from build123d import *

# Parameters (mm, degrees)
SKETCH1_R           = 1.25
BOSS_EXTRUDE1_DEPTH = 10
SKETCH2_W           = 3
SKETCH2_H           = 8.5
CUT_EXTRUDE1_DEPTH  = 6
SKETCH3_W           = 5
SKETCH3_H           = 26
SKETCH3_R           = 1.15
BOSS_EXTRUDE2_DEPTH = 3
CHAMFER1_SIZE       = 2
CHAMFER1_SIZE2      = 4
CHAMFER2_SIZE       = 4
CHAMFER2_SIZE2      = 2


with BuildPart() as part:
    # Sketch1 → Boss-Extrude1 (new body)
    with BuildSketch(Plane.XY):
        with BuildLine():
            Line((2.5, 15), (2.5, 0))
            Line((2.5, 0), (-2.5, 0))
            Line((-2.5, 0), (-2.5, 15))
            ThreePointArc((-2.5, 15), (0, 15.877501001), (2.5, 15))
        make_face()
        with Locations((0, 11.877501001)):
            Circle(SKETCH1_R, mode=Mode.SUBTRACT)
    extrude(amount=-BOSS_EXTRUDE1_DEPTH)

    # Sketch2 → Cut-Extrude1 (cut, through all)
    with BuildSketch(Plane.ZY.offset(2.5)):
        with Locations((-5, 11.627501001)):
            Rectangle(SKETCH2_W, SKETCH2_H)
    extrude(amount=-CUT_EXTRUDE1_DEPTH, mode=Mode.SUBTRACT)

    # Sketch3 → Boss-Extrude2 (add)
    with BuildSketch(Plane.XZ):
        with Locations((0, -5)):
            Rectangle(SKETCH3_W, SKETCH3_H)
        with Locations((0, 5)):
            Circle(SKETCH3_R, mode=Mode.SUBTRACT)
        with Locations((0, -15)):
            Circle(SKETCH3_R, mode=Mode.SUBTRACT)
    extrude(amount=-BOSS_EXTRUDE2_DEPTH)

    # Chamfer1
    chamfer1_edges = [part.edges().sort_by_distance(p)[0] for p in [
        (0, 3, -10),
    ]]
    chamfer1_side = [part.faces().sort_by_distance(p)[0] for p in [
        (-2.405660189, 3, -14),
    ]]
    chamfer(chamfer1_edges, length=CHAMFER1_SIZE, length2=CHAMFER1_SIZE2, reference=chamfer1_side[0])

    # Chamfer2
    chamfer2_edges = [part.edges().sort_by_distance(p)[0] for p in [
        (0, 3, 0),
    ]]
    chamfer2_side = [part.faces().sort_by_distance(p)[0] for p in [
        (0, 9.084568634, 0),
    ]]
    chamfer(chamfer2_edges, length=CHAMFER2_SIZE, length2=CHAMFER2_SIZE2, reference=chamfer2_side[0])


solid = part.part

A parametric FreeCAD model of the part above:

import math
import FreeCAD as App
import Part
import Sketcher


def edges_at(feature, points):
    """Names of the edges that pass closest to the given points."""
    edges = feature.Shape.Edges
    near = lambda p: min(range(len(edges)), key=lambda i: edges[i].distToShape(Part.Vertex(*p))[0])
    return sorted({f"Edge{near(p) + 1}" for p in points})


def add_polygon(sketch, points):
    """Adds a closed chain of lines whose ends are joined by coincident constraints."""
    first, n = sketch.GeometryCount, len(points)
    for a, b in zip(points, points[1:] + points[:1]):
        sketch.addGeometry(Part.LineSegment(App.Vector(*a, 0), App.Vector(*b, 0)), False)
    for i in range(n):
        sketch.addConstraint(Sketcher.Constraint("Coincident", first + i, 2, first + (i + 1) % n, 1))

doc = App.newDocument("Part")
params = doc.addObject("Spreadsheet::Sheet", "Params")
for row, (alias, value) in enumerate([
    ("sketch1_radius", "4 mm"),
    ("sketch1_diameter", "2.5 mm"),
    ("sketch1_width", "5 mm"),
    ("sketch1_height", "15 mm"),
    ("pad1_length", "10 mm"),
    ("sketch2_height", "3 mm"),
    ("sketch2_width", "8.5 mm"),
    ("sketch3_diameter", "2.3 mm"),
    ("sketch3_width", "5 mm"),
    ("sketch3_height", "26 mm"),
    ("pad2_length", "3 mm"),
    ("chamfer_size", "2 mm"),
    ("chamfer_size2", "4 mm"),
    ("chamfer2_size", "4 mm"),
    ("chamfer2_size2", "2 mm"),
], start=1):
    params.set(f"A{row}", alias)
    params.set(f"B{row}", "=" + value)
    params.setAlias(f"B{row}", alias)

body = doc.addObject("PartDesign::Body", "Body")

sketch1 = body.newObject("Sketcher::SketchObject", "Sketch")
sketch1.AttachmentSupport = (doc.getObject("XY_Plane"), [""])
sketch1.MapMode = "FlatFace"
sketch1.addGeometry([
    Part.LineSegment(App.Vector(2.5, 0, 0), App.Vector(2.5, 15, 0)),
    Part.ArcOfCircle(Part.Circle(App.Vector(0, 11.877501, 0), App.Vector(0, 0, 1), 4), math.radians(51.317813), math.radians(128.682187)),
    Part.LineSegment(App.Vector(-2.5, 15, 0), App.Vector(-2.5, 0, 0)),
    Part.LineSegment(App.Vector(-2.5, 0, 0), App.Vector(2.5, 0, 0)),
    Part.Circle(App.Vector(0, 11.877501, 0), App.Vector(0, 0, 1), 1.25),
], False)
sketch1.addConstraint([
    Sketcher.Constraint("Coincident", 0, 2, 1, 1),
    Sketcher.Constraint("Coincident", 1, 2, 2, 1),
    Sketcher.Constraint("Coincident", 2, 2, 3, 1),
    Sketcher.Constraint("Coincident", 3, 2, 0, 1),
    Sketcher.Constraint("Vertical", 0),
    Sketcher.Constraint("Vertical", 2),
    Sketcher.Constraint("Horizontal", 3),
    Sketcher.Constraint("Coincident", 4, 3, 1, 3),
    Sketcher.Constraint("Symmetric", 2, 2, 3, 2, -1, 1),
    Sketcher.Constraint("PointOnObject", 1, 3, -2),
    Sketcher.Constraint("Radius", 1, 4.0),
    Sketcher.Constraint("Diameter", 4, 2.5),
    Sketcher.Constraint("DistanceX", 3, 1, 3, 2, 5.0),
    Sketcher.Constraint("DistanceY", 0, 1, 0, 2, 15.0),
])
sketch1.setExpression("Constraints[10]", "Params.sketch1_radius")
sketch1.setExpression("Constraints[11]", "Params.sketch1_diameter")
sketch1.setExpression("Constraints[12]", "Params.sketch1_width")
sketch1.setExpression("Constraints[13]", "Params.sketch1_height")
pad1 = body.newObject("PartDesign::Pad", "Pad")
pad1.Profile = sketch1
pad1.setExpression("Length", "Params.pad1_length")
pad1.Reversed = True

sketch2 = body.newObject("Sketcher::SketchObject", "Sketch001")
sketch2.AttachmentSupport = (doc.getObject("YZ_Plane"), [""])
sketch2.MapMode = "FlatFace"
sketch2.AttachmentOffset = App.Placement(App.Vector(0, 0, -2.5), App.Rotation())
add_polygon(sketch2, [(15.877501, -6.5), (7.377501, -6.5), (7.377501, -3.5), (15.877501, -3.5)])
sketch2.addConstraint([
    Sketcher.Constraint("Horizontal", 0),
    Sketcher.Constraint("Vertical", 1),
    Sketcher.Constraint("Horizontal", 2),
    Sketcher.Constraint("Vertical", 3),
    Sketcher.Constraint("DistanceY", 1, 1, 1, 2, 3.0),
    Sketcher.Constraint("DistanceX", 0, 2, 0, 1, 8.5),
    Sketcher.Constraint("DistanceY", 0, 2, -1, 1, 6.5),
    Sketcher.Constraint("DistanceX", -1, 1, 0, 2, 7.377501),
])
sketch2.setExpression("Constraints[8]", "Params.sketch2_height")
sketch2.setExpression("Constraints[9]", "Params.sketch2_width")
pocket1 = body.newObject("PartDesign::Pocket", "Pocket")
pocket1.Profile = sketch2
pocket1.Type = "ThroughAll"
pocket1.Reversed = True

sketch3 = body.newObject("Sketcher::SketchObject", "Sketch002")
sketch3.AttachmentSupport = (doc.getObject("XZ_Plane"), [""])
sketch3.MapMode = "FlatFace"
add_polygon(sketch3, [(-2.5, 8), (-2.5, -18), (2.5, -18), (2.5, 8)])
sketch3.addGeometry(Part.Circle(App.Vector(0, -15, 0), App.Vector(0, 0, 1), 1.15), False)
sketch3.addGeometry(Part.Circle(App.Vector(0, 5, 0), App.Vector(0, 0, 1), 1.15), False)
sketch3.addConstraint([
    Sketcher.Constraint("Vertical", 0),
    Sketcher.Constraint("Horizontal", 1),
    Sketcher.Constraint("Vertical", 2),
    Sketcher.Constraint("Horizontal", 3),
    Sketcher.Constraint("Equal", 4, 5),
    Sketcher.Constraint("PointOnObject", 4, 3, -2),
    Sketcher.Constraint("PointOnObject", 5, 3, -2),
    Sketcher.Constraint("Diameter", 4, 2.3),
    Sketcher.Constraint("DistanceX", 1, 1, 1, 2, 5.0),
    Sketcher.Constraint("DistanceY", 0, 2, 0, 1, 26.0),
    Sketcher.Constraint("DistanceY", 4, 3, -1, 1, 15.0),
    Sketcher.Constraint("DistanceY", -1, 1, 5, 3, 5.0),
    Sketcher.Constraint("DistanceY", 0, 2, -1, 1, 18.0),
    Sketcher.Constraint("DistanceX", 0, 2, -1, 1, 2.5),
])
sketch3.setExpression("Constraints[11]", "Params.sketch3_diameter")
sketch3.setExpression("Constraints[12]", "Params.sketch3_width")
sketch3.setExpression("Constraints[13]", "Params.sketch3_height")
pad2 = body.newObject("PartDesign::Pad", "Pad001")
pad2.Profile = sketch3
pad2.setExpression("Length", "Params.pad2_length")
pad2.Reversed = True
doc.recompute()

chamfer = body.newObject("PartDesign::Chamfer", "Chamfer")
chamfer.Base = (pad2, edges_at(pad2, [(0, 3, -10)]))
chamfer.ChamferType = "Two distances"
chamfer.setExpression("Size", "Params.chamfer_size")
chamfer.setExpression("Size2", "Params.chamfer_size2")
chamfer.FlipDirection = True
doc.recompute()

chamfer2 = body.newObject("PartDesign::Chamfer", "Chamfer001")
chamfer2.Base = (chamfer, edges_at(chamfer, [(0, 3, 0)]))
chamfer2.ChamferType = "Two distances"
chamfer2.setExpression("Size", "Params.chamfer2_size")
chamfer2.setExpression("Size2", "Params.chamfer2_size2")
chamfer2.FlipDirection = True

doc.recompute()
